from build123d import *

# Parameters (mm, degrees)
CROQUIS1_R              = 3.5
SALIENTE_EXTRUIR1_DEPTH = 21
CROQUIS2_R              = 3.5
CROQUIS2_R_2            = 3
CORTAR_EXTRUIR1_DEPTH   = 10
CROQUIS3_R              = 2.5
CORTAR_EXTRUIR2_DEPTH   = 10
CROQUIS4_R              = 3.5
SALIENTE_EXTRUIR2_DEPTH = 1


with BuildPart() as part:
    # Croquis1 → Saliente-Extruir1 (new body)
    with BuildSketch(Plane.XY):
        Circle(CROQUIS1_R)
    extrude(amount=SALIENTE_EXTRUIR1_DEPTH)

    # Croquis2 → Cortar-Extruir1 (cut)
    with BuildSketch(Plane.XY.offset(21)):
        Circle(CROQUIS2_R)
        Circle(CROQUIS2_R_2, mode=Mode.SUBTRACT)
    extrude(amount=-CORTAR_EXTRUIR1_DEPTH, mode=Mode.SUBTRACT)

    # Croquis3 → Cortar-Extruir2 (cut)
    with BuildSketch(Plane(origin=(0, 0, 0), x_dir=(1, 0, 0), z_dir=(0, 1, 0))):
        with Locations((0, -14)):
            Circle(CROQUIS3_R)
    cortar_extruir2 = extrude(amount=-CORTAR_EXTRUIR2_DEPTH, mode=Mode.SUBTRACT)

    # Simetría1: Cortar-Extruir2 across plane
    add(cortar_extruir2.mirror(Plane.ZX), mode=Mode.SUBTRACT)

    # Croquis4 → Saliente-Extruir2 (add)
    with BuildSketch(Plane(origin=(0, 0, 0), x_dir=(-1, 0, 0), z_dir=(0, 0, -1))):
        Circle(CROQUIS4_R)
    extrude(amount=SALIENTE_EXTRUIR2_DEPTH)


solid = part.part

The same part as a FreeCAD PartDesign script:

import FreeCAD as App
import Part
import Sketcher

V = App.Vector
Q = App.Units.Quantity

doc = App.newDocument("Part")
body = doc.addObject("PartDesign::Body", "Body")

# Sketch on XY plane
sketch1 = body.newObject("Sketcher::SketchObject", "Sketch")
sketch1.AttachmentSupport = (doc.getObject("XY_Plane"), [""])
sketch1.MapMode = "FlatFace"
sketch1.addGeometry(Part.Circle(V(0, 0, 0), V(0, 0, 1), 3.5), False)
sketch1.addConstraint([
    Sketcher.Constraint("Coincident", 0, 3, -1, 1),
    Sketcher.Constraint("Diameter", 0, Q("7 mm")),
])
pad1 = body.newObject("PartDesign::Pad", "Pad")
pad1.Profile = sketch1
pad1.Length = 21

# Sketch on XY plane
sketch2 = body.newObject("Sketcher::SketchObject", "Sketch001")
sketch2.AttachmentSupport = (doc.getObject("XY_Plane"), [""])
sketch2.MapMode = "FlatFace"
sketch2.AttachmentOffset = App.Placement(V(0, 0, 21), App.Rotation())
sketch2.addGeometry([
    Part.Circle(V(0, 0, 0), V(0, 0, 1), 3.5),
    Part.Circle(V(0, 0, 0), V(0, 0, 1), 3),
], False)
sketch2.addConstraint([
    Sketcher.Constraint("Coincident", 0, 3, -1, 1),
    Sketcher.Constraint("Coincident", 1, 3, -1, 1),
    Sketcher.Constraint("Diameter", 0, Q("7 mm")),
    Sketcher.Constraint("Diameter", 1, Q("6 mm")),
])
pocket1 = body.newObject("PartDesign::Pocket", "Pocket")
pocket1.Profile = sketch2
pocket1.Length = 10

# Sketch on XZ plane
sketch3 = body.newObject("Sketcher::SketchObject", "Sketch002")
sketch3.AttachmentSupport = (doc.getObject("XZ_Plane"), [""])
sketch3.MapMode = "FlatFace"
sketch3.addGeometry(Part.Circle(V(0, 14, 0), V(0, 0, 1), 2.5), False)
sketch3.addConstraint([
    Sketcher.Constraint("PointOnObject", 0, 3, -2),
    Sketcher.Constraint("Diameter", 0, Q("5 mm")),
    Sketcher.Constraint("DistanceY", -1, 1, 0, 3, Q("14 mm")),
])
pocket2 = body.newObject("PartDesign::Pocket", "Pocket001")
pocket2.Profile = sketch3
pocket2.Length = 10
pocket2.Reversed = True
doc.recompute()

mirrored = body.newObject("PartDesign::Mirrored", "Mirrored")
mirrored.Originals = [pocket2]
mirrored.MirrorPlane = (doc.getObject("XZ_Plane"), [""])
body.Tip = mirrored

# Sketch on XY plane
sketch4 = body.newObject("Sketcher::SketchObject", "Sketch003")
sketch4.AttachmentSupport = (doc.getObject("XY_Plane"), [""])
sketch4.MapMode = "FlatFace"
sketch4.addGeometry(Part.Circle(V(0, 0, 0), V(0, 0, 1), 3.5), False)
sketch4.addConstraint([
    Sketcher.Constraint("Coincident", 0, 3, -1, 1),
    Sketcher.Constraint("Diameter", 0, Q("7 mm")),
])
pad2 = body.newObject("PartDesign::Pad", "Pad001")
pad2.Profile = sketch4
pad2.Length = 1
pad2.Reversed = True

doc.recompute()
